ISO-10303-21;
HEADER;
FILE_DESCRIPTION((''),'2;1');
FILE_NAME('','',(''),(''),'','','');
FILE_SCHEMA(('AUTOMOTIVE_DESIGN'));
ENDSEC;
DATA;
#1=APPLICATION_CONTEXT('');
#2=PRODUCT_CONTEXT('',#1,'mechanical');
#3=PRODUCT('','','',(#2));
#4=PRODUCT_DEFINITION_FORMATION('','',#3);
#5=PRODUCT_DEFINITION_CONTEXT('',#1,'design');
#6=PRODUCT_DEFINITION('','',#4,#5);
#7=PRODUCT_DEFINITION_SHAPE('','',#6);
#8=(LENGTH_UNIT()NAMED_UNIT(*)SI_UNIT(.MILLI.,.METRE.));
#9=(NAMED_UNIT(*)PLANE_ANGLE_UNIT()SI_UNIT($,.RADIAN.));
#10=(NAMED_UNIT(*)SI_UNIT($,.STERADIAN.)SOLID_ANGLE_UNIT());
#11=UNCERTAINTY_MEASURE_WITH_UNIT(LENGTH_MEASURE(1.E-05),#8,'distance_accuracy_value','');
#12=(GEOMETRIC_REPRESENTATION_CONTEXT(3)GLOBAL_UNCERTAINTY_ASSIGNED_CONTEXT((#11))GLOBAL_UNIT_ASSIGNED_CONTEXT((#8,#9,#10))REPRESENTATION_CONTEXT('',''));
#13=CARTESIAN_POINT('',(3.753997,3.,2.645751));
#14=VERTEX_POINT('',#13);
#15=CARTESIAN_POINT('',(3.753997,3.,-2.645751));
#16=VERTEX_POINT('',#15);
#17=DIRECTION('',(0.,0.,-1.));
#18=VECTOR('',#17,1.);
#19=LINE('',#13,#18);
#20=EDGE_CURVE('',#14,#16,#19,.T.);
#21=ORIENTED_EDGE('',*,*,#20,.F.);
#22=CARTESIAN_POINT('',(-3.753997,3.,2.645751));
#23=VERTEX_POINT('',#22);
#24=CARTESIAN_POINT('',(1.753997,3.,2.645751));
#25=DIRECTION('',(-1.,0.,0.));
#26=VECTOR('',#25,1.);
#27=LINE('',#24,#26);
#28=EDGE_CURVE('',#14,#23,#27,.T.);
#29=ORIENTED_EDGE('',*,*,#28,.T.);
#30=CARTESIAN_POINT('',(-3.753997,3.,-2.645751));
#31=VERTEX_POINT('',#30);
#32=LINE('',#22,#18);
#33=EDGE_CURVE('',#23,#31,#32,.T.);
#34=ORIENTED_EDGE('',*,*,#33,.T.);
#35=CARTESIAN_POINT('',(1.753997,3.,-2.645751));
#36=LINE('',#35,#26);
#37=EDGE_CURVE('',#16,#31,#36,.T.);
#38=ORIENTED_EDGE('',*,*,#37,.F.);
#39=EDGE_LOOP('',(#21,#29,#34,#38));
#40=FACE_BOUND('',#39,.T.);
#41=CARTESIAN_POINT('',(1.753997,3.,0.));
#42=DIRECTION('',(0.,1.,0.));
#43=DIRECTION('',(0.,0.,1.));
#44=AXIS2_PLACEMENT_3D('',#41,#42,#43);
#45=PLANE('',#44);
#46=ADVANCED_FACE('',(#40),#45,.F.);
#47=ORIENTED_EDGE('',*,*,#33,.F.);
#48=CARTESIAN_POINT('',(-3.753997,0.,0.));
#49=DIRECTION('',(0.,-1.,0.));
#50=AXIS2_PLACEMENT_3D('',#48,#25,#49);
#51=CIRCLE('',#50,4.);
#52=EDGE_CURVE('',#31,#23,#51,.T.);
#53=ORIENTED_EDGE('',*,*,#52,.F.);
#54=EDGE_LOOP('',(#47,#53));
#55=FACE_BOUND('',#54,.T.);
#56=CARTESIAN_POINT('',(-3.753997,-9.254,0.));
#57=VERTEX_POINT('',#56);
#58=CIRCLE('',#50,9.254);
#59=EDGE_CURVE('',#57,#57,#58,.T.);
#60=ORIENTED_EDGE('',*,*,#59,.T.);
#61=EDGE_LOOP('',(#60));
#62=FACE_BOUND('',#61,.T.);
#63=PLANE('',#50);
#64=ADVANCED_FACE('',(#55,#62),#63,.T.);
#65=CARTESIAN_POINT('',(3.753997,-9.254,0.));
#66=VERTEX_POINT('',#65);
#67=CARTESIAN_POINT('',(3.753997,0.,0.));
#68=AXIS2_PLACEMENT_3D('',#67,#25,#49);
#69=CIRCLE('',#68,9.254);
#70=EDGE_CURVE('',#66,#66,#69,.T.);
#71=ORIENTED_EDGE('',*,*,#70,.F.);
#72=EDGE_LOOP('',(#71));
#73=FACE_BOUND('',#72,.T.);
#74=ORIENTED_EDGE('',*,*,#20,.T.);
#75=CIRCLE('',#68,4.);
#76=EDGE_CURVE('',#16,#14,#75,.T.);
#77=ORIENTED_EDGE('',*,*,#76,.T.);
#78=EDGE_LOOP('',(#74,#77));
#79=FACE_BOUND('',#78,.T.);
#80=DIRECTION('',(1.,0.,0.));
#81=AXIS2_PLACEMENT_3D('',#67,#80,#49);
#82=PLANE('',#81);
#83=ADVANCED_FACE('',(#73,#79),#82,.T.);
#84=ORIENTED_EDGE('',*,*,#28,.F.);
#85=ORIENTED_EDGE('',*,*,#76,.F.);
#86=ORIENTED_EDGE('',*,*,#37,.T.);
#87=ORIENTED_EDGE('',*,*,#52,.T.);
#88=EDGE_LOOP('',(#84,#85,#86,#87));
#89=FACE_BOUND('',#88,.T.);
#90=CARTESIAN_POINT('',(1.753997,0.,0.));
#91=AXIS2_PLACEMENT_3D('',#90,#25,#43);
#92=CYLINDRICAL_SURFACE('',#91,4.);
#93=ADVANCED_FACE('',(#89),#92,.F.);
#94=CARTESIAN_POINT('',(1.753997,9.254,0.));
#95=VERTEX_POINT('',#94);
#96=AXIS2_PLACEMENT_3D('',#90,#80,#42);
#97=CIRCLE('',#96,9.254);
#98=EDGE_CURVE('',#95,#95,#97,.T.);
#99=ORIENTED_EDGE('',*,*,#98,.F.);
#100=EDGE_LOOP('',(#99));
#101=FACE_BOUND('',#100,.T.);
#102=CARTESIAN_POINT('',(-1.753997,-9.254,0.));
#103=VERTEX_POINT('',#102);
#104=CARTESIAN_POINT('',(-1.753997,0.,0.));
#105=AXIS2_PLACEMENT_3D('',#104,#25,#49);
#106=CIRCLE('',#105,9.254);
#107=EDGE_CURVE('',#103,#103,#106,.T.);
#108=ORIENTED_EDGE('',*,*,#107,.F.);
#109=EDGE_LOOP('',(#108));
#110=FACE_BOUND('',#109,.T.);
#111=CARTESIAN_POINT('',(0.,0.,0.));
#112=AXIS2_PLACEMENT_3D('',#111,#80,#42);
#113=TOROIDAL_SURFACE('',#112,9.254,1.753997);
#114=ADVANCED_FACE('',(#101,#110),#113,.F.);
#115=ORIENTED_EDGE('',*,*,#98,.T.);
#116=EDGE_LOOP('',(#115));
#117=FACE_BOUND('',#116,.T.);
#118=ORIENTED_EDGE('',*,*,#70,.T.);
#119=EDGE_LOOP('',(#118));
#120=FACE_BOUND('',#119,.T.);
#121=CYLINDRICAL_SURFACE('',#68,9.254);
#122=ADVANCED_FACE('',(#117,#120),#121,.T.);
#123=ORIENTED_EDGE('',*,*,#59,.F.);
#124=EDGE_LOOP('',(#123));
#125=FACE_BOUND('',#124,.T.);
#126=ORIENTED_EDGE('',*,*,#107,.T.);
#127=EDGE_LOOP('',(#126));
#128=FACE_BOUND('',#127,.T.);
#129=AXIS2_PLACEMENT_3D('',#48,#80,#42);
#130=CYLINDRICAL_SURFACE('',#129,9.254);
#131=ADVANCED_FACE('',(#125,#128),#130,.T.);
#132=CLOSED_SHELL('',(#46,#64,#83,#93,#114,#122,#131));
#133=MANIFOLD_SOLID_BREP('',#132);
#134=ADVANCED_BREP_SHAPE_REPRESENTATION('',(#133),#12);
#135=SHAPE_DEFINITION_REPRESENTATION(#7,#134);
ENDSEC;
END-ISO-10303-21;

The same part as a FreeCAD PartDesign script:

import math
import FreeCAD as App
import Part
import Sketcher
from FreeCAD import Vector
Q = App.Units.Quantity

doc = App.newDocument("Part")
params = doc.addObject("Spreadsheet::Sheet", "Params")
for row, (alias, value) in enumerate([
    ("revolution_angle", "360 deg"),
    ("sketch2_radius", "4 mm"),
    ("sketch3_radius", "4 mm"),
    ("pad1_length", "2 mm"),
], start=1):
    params.set(f"A{row}", alias)
    params.set(f"B{row}", "=" + value)
    params.setAlias(f"B{row}", alias)

body = doc.addObject("PartDesign::Body", "Body")

# Sketch on XY plane
sketch1 = doc.addObject("Sketcher::SketchObject", "Sketch")
body.addObject(sketch1)
sketch1.AttachmentSupport = (doc.XY_Plane, [""])
sketch1.MapMode = "FlatFace"
sketch1.addGeometry([
    Part.LineSegment(Vector(-1.753997, 0, 0), Vector(1.753997, 0, 0)),
    Part.LineSegment(Vector(1.753997, 0, 0), Vector(1.753997, 9.254, 0)),
    Part.ArcOfCircle(Part.Circle(Vector(0, 9.254, 0), Vector(0, 0, 1), 1.753997), math.radians(180), math.radians(360)),
    Part.LineSegment(Vector(-1.753997, 9.254, 0), Vector(-1.753997, 0, 0)),
], False)
sketch1.addConstraint([
    Sketcher.Constraint("Coincident", 0, 2, 1, 1),
    Sketcher.Constraint("Tangent", 1, 2, 2, 2),
    Sketcher.Constraint("Tangent", 2, 1, 3, 1),
    Sketcher.Constraint("Coincident", 3, 2, 0, 1),
    Sketcher.Constraint("Horizontal", 0),
    Sketcher.Constraint("Vertical", 1),
    Sketcher.Constraint("Vertical", 3),
    Sketcher.Constraint("Symmetric", 0, 2, 3, 2, -1, 1),
    Sketcher.Constraint("DistanceY", 1, 1, 1, 2, Q("9.254 mm")),
    Sketcher.Constraint("Radius", 2, Q("1.753997 mm")),
])
revolution = doc.addObject("PartDesign::Revolution", "Revolution")
body.addObject(revolution)
revolution.Profile = sketch1
revolution.ReferenceAxis = (sketch1, ["H_Axis"])
revolution.setExpression("Angle", "Params.revolution_angle")

# Sketch on YZ plane
sketch2 = doc.addObject("Sketcher::SketchObject", "Sketch001")
body.addObject(sketch2)
sketch2.AttachmentSupport = (doc.YZ_Plane, [""])
sketch2.MapMode = "FlatFace"
sketch2.AttachmentOffset = App.Placement(Vector(0, 0, -1.753997), App.Rotation())
sketch2.addGeometry([
    Part.ArcOfCircle(Part.Circle(Vector(0, 0, 0), Vector(0, 0, 1), 4), math.radians(41.409622), math.radians(318.590378)),
    Part.LineSegment(Vector(3, 2.645751, 0), Vector(3, -2.645751, 0)),
], False)
sketch2.addConstraint([
    Sketcher.Constraint("Coincident", 0, 1, 1, 1),
    Sketcher.Constraint("Coincident", 1, 2, 0, 2),
    Sketcher.Constraint("Vertical", 1),
    Sketcher.Constraint("Coincident", 0, 3, -1, 1),
    Sketcher.Constraint("Radius", 0, Q("4 mm")),
    Sketcher.Constraint("DistanceX", -1, 1, 0, 1, Q("3 mm")),
])
sketch2.setExpression("Constraints[4]", "Params.sketch2_radius")
pocket1 = doc.addObject("PartDesign::Pocket", "Pocket")
body.addObject(pocket1)
pocket1.Profile = sketch2
pocket1.Type = "ThroughAll"
pocket1.Reversed = True

# Sketch on YZ plane
sketch3 = doc.addObject("Sketcher::SketchObject", "Sketch002")
body.addObject(sketch3)
sketch3.AttachmentSupport = (doc.YZ_Plane, [""])
sketch3.MapMode = "FlatFace"
sketch3.AttachmentOffset = App.Placement(Vector(0, 0, -3.753997), App.Rotation())
sketch3.addGeometry([
    Part.Circle(Vector(0, 0, 0), Vector(0, 0, 1), 9.254),
    Part.LineSegment(Vector(3, -2.645751, 0), Vector(3, 2.645751, 0)),
    Part.ArcOfCircle(Part.Circle(Vector(0, 0, 0), Vector(0, 0, 1), 4), math.radians(41.409622), math.radians(318.590378)),
], False)
sketch3.addConstraint([
    Sketcher.Constraint("Coincident", 1, 1, 2, 2),
    Sketcher.Constraint("Coincident", 2, 1, 1, 2),
    Sketcher.Constraint("Vertical", 1),
    Sketcher.Constraint("Coincident", 0, 3, -1, 1),
    Sketcher.Constraint("Coincident", 2, 3, -1, 1),
    Sketcher.Constraint("Radius", 2, Q("4 mm")),
    Sketcher.Constraint("Diameter", 0, Q("18.508 mm")),
    Sketcher.Constraint("DistanceX", -1, 1, 1, 1, Q("3 mm")),
])
sketch3.setExpression("Constraints[5]", "Params.sketch3_radius")
pad1 = doc.addObject("PartDesign::Pad", "Pad")
body.addObject(pad1)
pad1.Profile = sketch3
pad1.setExpression("Length", "Params.pad1_length")
doc.recompute()

mirrored = doc.addObject("PartDesign::Mirrored", "Mirrored")
body.addObject(mirrored)
mirrored.Originals = [pad1]
mirrored.MirrorPlane = (doc.YZ_Plane, [""])
body.Tip = mirrored

doc.recompute()
